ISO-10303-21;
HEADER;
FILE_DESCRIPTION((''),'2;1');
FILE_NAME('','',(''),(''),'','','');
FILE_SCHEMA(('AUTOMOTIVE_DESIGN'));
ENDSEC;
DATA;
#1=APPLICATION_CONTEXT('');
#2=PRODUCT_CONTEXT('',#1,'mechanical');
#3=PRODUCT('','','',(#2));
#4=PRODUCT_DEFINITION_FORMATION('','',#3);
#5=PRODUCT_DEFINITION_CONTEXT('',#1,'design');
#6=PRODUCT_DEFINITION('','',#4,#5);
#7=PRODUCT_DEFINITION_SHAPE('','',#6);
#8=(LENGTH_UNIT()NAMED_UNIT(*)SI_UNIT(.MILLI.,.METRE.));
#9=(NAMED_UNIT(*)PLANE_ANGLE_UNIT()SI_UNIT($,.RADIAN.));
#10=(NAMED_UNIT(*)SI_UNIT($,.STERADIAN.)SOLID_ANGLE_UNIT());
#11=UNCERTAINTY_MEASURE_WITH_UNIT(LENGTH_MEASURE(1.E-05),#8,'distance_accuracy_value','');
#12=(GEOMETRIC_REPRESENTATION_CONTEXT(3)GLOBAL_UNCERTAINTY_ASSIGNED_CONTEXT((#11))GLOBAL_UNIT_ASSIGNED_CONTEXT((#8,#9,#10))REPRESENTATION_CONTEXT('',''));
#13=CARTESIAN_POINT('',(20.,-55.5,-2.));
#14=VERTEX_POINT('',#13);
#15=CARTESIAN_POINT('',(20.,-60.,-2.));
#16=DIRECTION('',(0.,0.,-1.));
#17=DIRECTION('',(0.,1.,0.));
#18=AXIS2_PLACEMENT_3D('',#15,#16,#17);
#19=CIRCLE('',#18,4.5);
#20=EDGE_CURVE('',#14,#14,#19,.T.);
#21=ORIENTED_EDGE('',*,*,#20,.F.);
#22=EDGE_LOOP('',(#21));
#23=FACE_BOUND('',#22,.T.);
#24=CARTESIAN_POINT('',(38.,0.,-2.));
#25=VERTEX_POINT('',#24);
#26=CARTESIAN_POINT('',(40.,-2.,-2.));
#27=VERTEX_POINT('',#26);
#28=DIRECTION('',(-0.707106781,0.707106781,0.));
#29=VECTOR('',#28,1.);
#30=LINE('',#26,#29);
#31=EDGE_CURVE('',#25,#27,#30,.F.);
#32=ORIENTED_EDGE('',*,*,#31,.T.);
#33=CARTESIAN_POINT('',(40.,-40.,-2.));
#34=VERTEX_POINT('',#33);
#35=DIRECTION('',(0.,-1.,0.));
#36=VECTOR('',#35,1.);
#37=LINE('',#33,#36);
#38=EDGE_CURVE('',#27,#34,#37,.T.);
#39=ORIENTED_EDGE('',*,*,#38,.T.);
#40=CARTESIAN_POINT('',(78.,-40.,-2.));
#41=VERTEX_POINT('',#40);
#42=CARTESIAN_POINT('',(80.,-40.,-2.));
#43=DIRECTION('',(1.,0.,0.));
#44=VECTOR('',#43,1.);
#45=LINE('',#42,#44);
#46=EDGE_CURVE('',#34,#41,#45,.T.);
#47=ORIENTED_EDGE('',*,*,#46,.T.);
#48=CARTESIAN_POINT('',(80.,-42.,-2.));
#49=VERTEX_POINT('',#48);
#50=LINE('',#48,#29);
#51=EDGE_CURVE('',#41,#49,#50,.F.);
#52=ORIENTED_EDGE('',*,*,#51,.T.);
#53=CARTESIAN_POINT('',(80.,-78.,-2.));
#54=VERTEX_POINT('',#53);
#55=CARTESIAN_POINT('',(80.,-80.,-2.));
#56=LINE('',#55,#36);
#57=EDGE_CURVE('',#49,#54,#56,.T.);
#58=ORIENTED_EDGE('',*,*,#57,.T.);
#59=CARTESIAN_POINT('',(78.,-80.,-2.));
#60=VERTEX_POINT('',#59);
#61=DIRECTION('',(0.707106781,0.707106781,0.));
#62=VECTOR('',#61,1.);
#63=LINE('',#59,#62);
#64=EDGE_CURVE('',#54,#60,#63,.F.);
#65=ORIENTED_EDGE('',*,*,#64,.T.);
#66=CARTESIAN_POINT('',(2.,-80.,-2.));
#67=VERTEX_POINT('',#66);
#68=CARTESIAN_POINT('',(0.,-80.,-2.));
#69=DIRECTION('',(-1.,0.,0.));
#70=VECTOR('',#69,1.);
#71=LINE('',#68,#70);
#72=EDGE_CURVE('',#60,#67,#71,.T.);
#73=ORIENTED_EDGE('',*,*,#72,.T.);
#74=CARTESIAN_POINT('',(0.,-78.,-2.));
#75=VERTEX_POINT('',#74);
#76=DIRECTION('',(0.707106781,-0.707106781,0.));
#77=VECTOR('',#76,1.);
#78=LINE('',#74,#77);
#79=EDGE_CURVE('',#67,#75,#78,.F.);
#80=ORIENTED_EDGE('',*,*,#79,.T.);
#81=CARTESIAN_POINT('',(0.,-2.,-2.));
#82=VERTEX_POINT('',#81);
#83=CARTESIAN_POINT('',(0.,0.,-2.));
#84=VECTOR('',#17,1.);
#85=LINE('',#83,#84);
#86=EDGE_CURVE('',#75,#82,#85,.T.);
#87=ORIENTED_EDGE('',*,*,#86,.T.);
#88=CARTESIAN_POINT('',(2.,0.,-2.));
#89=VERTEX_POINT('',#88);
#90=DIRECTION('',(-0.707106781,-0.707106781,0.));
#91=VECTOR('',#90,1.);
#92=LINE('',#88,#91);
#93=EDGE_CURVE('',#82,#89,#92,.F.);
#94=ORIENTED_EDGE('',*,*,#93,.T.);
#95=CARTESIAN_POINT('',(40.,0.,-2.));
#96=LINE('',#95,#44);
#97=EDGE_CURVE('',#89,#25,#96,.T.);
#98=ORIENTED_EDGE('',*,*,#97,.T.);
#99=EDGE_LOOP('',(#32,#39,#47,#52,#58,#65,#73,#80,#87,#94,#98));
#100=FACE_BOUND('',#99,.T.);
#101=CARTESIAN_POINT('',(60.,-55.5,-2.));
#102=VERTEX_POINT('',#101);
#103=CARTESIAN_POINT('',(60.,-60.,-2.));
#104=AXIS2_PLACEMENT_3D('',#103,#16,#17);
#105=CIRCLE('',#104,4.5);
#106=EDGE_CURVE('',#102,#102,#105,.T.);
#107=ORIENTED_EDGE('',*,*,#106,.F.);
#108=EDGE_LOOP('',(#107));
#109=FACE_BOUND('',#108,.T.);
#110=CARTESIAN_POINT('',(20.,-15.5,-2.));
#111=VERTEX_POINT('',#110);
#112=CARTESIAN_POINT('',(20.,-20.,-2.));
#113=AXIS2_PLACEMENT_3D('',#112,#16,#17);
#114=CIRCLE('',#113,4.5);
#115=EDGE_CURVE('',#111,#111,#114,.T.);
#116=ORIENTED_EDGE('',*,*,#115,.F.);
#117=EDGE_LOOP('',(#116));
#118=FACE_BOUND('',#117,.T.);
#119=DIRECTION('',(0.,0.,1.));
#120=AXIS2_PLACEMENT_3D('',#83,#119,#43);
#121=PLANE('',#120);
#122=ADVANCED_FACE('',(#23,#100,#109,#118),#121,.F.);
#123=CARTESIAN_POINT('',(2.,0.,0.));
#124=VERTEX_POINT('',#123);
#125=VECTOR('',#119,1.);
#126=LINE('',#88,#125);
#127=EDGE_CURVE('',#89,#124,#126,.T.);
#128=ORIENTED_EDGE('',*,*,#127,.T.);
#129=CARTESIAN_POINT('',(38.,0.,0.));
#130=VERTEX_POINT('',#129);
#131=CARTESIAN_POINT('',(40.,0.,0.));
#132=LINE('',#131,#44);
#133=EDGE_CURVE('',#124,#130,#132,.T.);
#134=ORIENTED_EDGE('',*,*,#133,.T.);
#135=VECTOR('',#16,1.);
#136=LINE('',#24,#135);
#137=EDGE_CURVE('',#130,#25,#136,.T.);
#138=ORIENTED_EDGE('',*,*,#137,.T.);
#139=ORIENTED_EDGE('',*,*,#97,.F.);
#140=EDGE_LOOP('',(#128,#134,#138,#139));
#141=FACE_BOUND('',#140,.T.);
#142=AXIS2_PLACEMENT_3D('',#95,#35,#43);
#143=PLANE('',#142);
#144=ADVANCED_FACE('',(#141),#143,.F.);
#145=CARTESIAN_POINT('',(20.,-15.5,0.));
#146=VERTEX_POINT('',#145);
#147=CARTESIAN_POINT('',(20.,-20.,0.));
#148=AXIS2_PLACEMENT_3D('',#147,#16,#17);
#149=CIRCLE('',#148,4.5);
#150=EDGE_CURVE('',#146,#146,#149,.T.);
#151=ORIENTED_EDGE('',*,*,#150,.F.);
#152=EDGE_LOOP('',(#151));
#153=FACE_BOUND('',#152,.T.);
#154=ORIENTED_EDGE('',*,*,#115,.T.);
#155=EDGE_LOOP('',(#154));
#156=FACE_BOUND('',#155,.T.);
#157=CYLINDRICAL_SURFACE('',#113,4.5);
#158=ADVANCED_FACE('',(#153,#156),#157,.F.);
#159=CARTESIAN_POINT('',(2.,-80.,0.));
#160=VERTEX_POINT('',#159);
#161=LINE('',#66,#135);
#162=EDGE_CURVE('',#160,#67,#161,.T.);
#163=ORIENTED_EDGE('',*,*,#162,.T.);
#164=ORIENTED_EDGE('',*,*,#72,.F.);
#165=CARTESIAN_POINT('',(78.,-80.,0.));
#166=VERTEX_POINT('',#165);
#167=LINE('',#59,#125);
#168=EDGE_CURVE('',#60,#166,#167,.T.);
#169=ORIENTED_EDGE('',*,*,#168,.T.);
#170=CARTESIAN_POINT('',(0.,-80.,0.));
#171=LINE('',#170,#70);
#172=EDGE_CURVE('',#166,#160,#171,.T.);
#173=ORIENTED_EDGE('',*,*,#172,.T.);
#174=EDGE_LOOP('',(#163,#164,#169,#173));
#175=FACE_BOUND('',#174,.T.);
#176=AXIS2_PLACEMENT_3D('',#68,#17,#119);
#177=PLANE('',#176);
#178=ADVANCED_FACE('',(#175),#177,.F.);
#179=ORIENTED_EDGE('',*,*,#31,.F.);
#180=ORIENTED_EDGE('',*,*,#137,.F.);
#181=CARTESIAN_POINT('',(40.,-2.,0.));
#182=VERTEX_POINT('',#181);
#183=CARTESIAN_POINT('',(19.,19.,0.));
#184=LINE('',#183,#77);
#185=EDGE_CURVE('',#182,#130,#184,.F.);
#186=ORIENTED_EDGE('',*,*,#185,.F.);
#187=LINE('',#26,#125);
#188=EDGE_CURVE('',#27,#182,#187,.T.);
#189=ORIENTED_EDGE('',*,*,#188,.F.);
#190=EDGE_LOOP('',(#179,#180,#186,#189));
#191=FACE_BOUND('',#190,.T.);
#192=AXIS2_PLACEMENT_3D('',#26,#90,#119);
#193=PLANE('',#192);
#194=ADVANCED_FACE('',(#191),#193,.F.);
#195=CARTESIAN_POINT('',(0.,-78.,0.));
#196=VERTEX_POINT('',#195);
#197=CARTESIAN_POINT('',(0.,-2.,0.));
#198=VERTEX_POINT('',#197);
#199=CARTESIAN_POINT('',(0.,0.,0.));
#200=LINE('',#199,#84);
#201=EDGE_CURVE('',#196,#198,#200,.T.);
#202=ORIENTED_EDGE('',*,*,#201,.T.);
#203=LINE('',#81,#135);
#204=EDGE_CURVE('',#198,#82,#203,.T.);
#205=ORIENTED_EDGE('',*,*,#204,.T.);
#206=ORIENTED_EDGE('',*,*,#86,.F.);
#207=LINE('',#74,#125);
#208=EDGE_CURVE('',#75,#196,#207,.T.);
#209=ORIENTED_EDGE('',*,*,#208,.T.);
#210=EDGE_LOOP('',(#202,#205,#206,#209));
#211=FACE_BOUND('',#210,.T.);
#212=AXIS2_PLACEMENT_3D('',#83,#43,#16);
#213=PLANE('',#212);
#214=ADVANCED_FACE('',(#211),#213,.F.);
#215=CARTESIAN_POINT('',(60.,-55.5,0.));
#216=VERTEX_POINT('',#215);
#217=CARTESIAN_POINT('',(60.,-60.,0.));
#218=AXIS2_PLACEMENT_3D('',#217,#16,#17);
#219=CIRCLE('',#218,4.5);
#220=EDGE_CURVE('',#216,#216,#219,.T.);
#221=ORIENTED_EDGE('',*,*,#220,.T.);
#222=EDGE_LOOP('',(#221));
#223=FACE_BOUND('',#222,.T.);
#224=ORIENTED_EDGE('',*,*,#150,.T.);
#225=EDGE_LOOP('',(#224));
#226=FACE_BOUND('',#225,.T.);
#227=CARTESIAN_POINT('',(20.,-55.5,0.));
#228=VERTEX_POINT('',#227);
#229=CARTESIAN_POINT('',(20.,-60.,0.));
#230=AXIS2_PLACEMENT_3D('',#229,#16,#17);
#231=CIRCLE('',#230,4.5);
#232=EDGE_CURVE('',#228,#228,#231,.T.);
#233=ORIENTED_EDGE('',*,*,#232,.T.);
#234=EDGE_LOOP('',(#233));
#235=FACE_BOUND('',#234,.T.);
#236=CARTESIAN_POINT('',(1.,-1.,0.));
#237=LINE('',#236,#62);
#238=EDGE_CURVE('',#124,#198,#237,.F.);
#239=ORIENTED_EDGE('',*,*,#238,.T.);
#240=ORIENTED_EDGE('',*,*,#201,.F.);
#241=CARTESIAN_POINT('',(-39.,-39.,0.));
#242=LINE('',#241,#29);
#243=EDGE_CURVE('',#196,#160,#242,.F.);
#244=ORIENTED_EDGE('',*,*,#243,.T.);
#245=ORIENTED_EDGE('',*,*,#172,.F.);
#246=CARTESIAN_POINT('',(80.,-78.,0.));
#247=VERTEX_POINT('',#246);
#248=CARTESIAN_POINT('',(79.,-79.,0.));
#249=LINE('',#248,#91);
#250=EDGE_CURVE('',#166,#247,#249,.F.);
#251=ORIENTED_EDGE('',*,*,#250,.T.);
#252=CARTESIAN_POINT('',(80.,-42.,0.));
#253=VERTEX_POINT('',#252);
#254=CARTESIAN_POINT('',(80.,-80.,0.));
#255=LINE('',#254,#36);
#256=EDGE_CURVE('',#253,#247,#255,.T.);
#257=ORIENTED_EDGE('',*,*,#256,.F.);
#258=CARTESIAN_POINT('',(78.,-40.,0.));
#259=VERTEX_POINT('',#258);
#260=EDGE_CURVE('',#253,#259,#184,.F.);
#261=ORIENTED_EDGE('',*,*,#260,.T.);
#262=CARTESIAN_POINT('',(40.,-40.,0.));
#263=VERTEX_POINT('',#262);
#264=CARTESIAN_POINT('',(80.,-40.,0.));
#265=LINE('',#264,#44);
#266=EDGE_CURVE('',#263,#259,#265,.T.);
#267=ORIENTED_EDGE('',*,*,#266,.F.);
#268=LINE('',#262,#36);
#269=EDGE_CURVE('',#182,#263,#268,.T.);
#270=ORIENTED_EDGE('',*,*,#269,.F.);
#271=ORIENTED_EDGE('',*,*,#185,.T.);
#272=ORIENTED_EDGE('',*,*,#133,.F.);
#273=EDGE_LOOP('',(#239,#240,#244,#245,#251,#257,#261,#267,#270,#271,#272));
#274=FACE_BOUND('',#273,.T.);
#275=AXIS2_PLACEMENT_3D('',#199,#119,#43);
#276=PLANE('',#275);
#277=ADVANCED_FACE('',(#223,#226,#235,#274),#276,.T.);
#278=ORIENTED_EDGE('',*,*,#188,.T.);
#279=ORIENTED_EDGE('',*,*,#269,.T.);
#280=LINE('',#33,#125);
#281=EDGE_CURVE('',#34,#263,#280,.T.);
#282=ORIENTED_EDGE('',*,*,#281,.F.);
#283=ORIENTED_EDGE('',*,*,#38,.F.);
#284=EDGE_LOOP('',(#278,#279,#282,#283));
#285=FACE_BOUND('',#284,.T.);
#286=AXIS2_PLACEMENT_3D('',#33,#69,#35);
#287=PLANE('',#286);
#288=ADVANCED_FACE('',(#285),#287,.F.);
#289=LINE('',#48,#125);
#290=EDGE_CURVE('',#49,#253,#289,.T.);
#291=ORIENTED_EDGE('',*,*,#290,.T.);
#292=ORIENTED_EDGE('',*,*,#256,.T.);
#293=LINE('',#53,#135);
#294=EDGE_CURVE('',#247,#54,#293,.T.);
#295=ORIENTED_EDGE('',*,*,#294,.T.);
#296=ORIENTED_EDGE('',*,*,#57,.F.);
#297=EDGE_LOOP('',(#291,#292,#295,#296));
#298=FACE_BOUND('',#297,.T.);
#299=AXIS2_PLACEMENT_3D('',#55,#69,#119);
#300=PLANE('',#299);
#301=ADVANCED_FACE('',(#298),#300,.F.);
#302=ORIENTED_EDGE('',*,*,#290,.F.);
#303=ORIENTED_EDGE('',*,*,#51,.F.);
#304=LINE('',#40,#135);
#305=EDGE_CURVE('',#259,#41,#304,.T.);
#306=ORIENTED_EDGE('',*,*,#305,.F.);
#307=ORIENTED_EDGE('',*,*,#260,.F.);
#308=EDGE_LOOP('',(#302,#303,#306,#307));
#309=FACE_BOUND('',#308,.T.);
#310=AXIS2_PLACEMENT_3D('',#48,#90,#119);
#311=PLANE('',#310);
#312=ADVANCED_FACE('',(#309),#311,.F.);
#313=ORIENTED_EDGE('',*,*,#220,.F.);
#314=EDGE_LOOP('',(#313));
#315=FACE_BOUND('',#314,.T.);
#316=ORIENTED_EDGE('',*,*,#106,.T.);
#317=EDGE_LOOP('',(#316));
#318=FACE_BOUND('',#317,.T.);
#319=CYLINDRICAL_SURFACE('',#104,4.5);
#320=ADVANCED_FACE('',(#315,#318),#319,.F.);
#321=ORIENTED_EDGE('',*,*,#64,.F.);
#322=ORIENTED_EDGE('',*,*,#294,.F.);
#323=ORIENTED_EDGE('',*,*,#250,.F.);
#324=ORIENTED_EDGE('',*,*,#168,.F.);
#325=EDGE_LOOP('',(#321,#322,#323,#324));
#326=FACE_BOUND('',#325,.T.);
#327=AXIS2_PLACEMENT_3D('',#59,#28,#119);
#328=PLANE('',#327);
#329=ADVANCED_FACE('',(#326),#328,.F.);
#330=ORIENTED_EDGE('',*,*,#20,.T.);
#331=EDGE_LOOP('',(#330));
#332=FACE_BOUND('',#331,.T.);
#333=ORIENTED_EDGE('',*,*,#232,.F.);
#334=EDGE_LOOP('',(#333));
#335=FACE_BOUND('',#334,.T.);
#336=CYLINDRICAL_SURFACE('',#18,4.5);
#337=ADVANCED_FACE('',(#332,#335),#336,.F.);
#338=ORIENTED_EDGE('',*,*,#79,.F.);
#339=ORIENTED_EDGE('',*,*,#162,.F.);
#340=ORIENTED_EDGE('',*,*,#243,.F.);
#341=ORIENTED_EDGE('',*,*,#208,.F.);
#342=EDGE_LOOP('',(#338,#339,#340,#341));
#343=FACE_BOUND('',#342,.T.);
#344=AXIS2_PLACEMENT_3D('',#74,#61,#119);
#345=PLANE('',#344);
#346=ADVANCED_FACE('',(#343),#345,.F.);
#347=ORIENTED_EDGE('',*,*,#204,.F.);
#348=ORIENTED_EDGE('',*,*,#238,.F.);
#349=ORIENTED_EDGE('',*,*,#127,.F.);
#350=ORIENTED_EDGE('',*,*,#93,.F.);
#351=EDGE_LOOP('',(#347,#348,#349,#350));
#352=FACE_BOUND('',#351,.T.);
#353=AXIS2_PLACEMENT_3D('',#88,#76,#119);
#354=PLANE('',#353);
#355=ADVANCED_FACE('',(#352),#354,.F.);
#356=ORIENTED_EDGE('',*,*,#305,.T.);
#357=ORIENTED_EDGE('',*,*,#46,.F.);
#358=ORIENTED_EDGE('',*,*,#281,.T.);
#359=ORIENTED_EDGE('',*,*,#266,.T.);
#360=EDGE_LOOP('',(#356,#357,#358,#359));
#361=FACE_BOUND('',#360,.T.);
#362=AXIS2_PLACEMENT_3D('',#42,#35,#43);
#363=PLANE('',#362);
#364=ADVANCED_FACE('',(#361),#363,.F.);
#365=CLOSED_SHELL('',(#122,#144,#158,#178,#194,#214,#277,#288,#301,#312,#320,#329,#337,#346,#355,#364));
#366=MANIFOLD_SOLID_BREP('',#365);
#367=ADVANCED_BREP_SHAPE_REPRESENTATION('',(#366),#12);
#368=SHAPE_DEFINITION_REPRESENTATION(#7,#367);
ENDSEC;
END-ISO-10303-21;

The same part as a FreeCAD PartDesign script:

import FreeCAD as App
import Part
import Sketcher
from FreeCAD import Vector


def edges_at(feature, points):
    """Names of the edges that pass closest to the given points."""
    edges = feature.Shape.Edges
    near = lambda p: min(range(len(edges)), key=lambda i: edges[i].distToShape(Part.Vertex(*p))[0])
    return sorted({f"Edge{near(p) + 1}" for p in points})


def add_polygon(sketch, points):
    """Adds a closed chain of lines whose ends are joined by coincident constraints."""
    first, n = sketch.GeometryCount, len(points)
    for a, b in zip(points, points[1:] + points[:1]):
        sketch.addGeometry(Part.LineSegment(App.Vector(*a, 0), App.Vector(*b, 0)), False)
    for i in range(n):
        sketch.addConstraint(Sketcher.Constraint("Coincident", first + i, 2, first + (i + 1) % n, 1))

doc = App.newDocument("Part")
body = doc.addObject("PartDesign::Body", "Body")

sketch1 = body.newObject("Sketcher::SketchObject", "Sketch")
sketch1.AttachmentSupport = (doc.getObject("XY_Plane"), [""])
sketch1.MapMode = "FlatFace"
add_polygon(sketch1, [(0, -80), (0, 0), (40, 0), (40, -40), (80, -40), (80, -80)])
sketch1.addConstraint([
    Sketcher.Constraint("Vertical", 0),
    Sketcher.Constraint("Horizontal", 1),
    Sketcher.Constraint("Vertical", 2),
    Sketcher.Constraint("Horizontal", 3),
    Sketcher.Constraint("Vertical", 4),
    Sketcher.Constraint("Horizontal", 5),
    Sketcher.Constraint("Coincident", 0, 2, -1, 1),
    Sketcher.Constraint("Equal", 1, 3),
    Sketcher.Constraint("Equal", 5, 0),
    Sketcher.Constraint("Equal", 3, 2),
    Sketcher.Constraint("DistanceX", 1, 1, 1, 2, 40.0),
])
pad1 = body.newObject("PartDesign::Pad", "Pad")
pad1.Profile = sketch1
pad1.Length = 2
pad1.Reversed = True

sketch2 = body.newObject("Sketcher::SketchObject", "Sketch001")
sketch2.AttachmentSupport = (doc.getObject("XY_Plane"), [""])
sketch2.MapMode = "FlatFace"
sketch2.AttachmentOffset = App.Placement(Vector(0, 0, -2), App.Rotation())
sketch2.addGeometry([
    Part.Circle(Vector(20, -60, 0), Vector(0, 0, 1), 4.5),
    Part.Circle(Vector(20, -20, 0), Vector(0, 0, 1), 4.5),
    Part.Circle(Vector(60, -60, 0), Vector(0, 0, 1), 4.5),
], False)
sketch2.addConstraint([
    Sketcher.Constraint("Equal", 0, 1),
    Sketcher.Constraint("Equal", 1, 2),
    Sketcher.Constraint("Horizontal", 0, 3, 2, 3),
    Sketcher.Constraint("Vertical", 0, 3, 1, 3),
    Sketcher.Constraint("Diameter", 0, 9.0),
    Sketcher.Constraint("DistanceX", -1, 1, 0, 3, 20.0),
    Sketcher.Constraint("DistanceY", 0, 3, -1, 1, 60.0),
    Sketcher.Constraint("DistanceY", 1, 3, -1, 1, 20.0),
    Sketcher.Constraint("DistanceX", -1, 1, 2, 3, 60.0),
])
doc.recompute()
hole = body.newObject("PartDesign::Hole", "Hole")
hole.Profile = sketch2
hole.ThreadType = "None"
hole.Diameter = 9
hole.DepthType = "ThroughAll"
hole.Reversed = True
doc.recompute()

chamfer = body.newObject("PartDesign::Chamfer", "Chamfer")
chamfer.Base = (hole, edges_at(hole, [
    (0, 0, -1),
    (0, -80, -1),
    (80, -80, -1),
    (80, -40, -1),
    (40, 0, -1),
]))
chamfer.Size = 2

doc.recompute()
